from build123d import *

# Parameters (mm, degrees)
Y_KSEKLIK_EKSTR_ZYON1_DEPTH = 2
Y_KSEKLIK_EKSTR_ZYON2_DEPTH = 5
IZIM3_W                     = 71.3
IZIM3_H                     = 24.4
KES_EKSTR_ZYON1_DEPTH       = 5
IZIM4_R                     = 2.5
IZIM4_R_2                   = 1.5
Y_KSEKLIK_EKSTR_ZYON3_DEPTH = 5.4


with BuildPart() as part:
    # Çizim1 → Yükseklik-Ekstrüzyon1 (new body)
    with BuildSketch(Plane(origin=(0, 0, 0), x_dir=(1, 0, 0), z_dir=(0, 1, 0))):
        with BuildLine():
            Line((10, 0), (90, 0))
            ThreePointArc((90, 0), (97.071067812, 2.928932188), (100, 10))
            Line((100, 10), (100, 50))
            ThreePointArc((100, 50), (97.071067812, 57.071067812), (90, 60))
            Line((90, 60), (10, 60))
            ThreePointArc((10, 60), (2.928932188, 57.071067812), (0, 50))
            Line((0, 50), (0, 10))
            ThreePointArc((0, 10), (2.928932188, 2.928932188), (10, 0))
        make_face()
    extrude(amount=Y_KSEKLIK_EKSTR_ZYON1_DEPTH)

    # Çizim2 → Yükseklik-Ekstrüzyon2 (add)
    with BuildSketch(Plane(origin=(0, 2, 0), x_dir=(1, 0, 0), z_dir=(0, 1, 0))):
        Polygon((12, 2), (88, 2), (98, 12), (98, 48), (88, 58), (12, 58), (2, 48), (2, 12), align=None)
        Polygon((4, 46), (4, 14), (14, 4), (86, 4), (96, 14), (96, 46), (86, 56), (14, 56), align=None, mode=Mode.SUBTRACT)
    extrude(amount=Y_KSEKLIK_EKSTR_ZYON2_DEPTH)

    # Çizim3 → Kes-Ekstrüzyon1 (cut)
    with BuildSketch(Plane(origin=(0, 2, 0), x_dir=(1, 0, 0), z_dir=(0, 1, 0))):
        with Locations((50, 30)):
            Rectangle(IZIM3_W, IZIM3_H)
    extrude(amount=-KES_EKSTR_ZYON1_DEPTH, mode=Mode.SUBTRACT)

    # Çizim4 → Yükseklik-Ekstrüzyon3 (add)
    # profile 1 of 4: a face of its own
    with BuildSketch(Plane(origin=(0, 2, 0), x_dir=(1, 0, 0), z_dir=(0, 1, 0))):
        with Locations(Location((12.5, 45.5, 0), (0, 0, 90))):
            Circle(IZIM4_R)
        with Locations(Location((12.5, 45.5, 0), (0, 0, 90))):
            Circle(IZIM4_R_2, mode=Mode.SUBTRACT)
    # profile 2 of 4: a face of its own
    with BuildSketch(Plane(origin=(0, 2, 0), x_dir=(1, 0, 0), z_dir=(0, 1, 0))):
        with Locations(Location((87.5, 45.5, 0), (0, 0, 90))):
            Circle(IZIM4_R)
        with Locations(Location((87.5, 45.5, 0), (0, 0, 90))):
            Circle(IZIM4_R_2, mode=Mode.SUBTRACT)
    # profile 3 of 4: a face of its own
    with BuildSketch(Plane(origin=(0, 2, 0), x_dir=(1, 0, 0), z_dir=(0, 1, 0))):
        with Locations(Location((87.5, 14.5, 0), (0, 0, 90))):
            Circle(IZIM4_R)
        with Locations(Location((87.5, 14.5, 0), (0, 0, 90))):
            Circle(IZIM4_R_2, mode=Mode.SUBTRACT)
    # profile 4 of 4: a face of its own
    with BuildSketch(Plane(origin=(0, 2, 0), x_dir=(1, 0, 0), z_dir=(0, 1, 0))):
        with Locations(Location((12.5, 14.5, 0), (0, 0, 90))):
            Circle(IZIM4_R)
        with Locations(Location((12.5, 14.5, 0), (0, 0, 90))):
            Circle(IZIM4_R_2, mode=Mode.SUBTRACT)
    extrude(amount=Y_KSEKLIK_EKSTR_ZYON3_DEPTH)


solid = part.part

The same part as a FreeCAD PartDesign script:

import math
import FreeCAD as App
import Part
import Sketcher
from FreeCAD import Vector

doc = App.newDocument("Part")
body = doc.addObject("PartDesign::Body", "Body")

sketch1 = body.newObject("Sketcher::SketchObject", "Sketch")
sketch1.AttachmentSupport = (doc.getObject("XZ_Plane"), [""])
sketch1.MapMode = "FlatFace"
sketch1.addGeometry(Part.LineSegment(Vector(10, 0, 0), Vector(90, 0, 0)), False)
sketch1.addGeometry(Part.ArcOfCircle(Part.Circle(Vector(90, -10, 0), Vector(0, 0, 1), 10), math.radians(0), math.radians(90)), False)
sketch1.addGeometry(Part.LineSegment(Vector(100, -10, 0), Vector(100, -50, 0)), False)
sketch1.addGeometry(Part.ArcOfCircle(Part.Circle(Vector(90, -50, 0), Vector(0, 0, 1), 10), math.radians(-90), math.radians(0)), False)
sketch1.addGeometry(Part.LineSegment(Vector(90, -60, 0), Vector(10, -60, 0)), False)
sketch1.addGeometry(Part.ArcOfCircle(Part.Circle(Vector(10, -50, 0), Vector(0, 0, 1), 10), math.radians(180), math.radians(270)), False)
sketch1.addGeometry(Part.LineSegment(Vector(0, -50, 0), Vector(0, -10, 0)), False)
sketch1.addGeometry(Part.ArcOfCircle(Part.Circle(Vector(10, -10, 0), Vector(0, 0, 1), 10), math.radians(90), math.radians(180)), False)
sketch1.addConstraint(Sketcher.Constraint("Tangent", 0, 2, 1, 2))
sketch1.addConstraint(Sketcher.Constraint("Tangent", 1, 1, 2, 1))
sketch1.addConstraint(Sketcher.Constraint("Tangent", 2, 2, 3, 2))
sketch1.addConstraint(Sketcher.Constraint("Tangent", 3, 1, 4, 1))
sketch1.addConstraint(Sketcher.Constraint("Tangent", 4, 2, 5, 2))
sketch1.addConstraint(Sketcher.Constraint("Tangent", 5, 1, 6, 1))
sketch1.addConstraint(Sketcher.Constraint("Tangent", 6, 2, 7, 2))
sketch1.addConstraint(Sketcher.Constraint("Tangent", 7, 1, 0, 1))
sketch1.addConstraint(Sketcher.Constraint("Horizontal", 0))
sketch1.addConstraint(Sketcher.Constraint("Vertical", 2))
sketch1.addConstraint(Sketcher.Constraint("Horizontal", 4))
sketch1.addConstraint(Sketcher.Constraint("Vertical", 6))
sketch1.addConstraint(Sketcher.Constraint("Equal", 1, 3))
sketch1.addConstraint(Sketcher.Constraint("Equal", 3, 5))
sketch1.addConstraint(Sketcher.Constraint("Equal", 5, 7))
sketch1.addConstraint(Sketcher.Constraint("PointOnObject", 0, 2, -1))
sketch1.addConstraint(Sketcher.Constraint("PointOnObject", 5, 1, -2))
sketch1.addConstraint(Sketcher.Constraint("Radius", 1, 10.0))
sketch1.addConstraint(Sketcher.Constraint("DistanceX", 0, 1, 0, 2, 80.0))
sketch1.addConstraint(Sketcher.Constraint("DistanceY", 2, 2, 2, 1, 40.0))
pad1 = body.newObject("PartDesign::Pad", "Pad")
pad1.Profile = sketch1
pad1.Length = 2
pad1.Reversed = True

sketch2 = body.newObject("Sketcher::SketchObject", "Sketch001")
sketch2.AttachmentSupport = (doc.getObject("XZ_Plane"), [""])
sketch2.MapMode = "FlatFace"
sketch2.AttachmentOffset = App.Placement(Vector(0, 0, -2), App.Rotation())
sketch2.addGeometry(Part.LineSegment(Vector(12, -2, 0), Vector(88, -2, 0)), False)
sketch2.addGeometry(Part.LineSegment(Vector(88, -2, 0), Vector(98, -12, 0)), False)
sketch2.addGeometry(Part.LineSegment(Vector(98, -12, 0), Vector(98, -48, 0)), False)
sketch2.addGeometry(Part.LineSegment(Vector(98, -48, 0), Vector(88, -58, 0)), False)
sketch2.addGeometry(Part.LineSegment(Vector(88, -58, 0), Vector(12, -58, 0)), False)
sketch2.addGeometry(Part.LineSegment(Vector(12, -58, 0), Vector(2, -48, 0)), False)
sketch2.addGeometry(Part.LineSegment(Vector(2, -48, 0), Vector(2, -12, 0)), False)
sketch2.addGeometry(Part.LineSegment(Vector(2, -12, 0), Vector(12, -2, 0)), False)
sketch2.addGeometry(Part.LineSegment(Vector(4, -14, 0), Vector(4, -46, 0)), False)
sketch2.addGeometry(Part.LineSegment(Vector(4, -46, 0), Vector(14, -56, 0)), False)
sketch2.addGeometry(Part.LineSegment(Vector(14, -56, 0), Vector(86, -56, 0)), False)
sketch2.addGeometry(Part.LineSegment(Vector(86, -56, 0), Vector(96, -46, 0)), False)
sketch2.addGeometry(Part.LineSegment(Vector(96, -46, 0), Vector(96, -14, 0)), False)
sketch2.addGeometry(Part.LineSegment(Vector(96, -14, 0), Vector(86, -4, 0)), False)
sketch2.addGeometry(Part.LineSegment(Vector(86, -4, 0), Vector(14, -4, 0)), False)
sketch2.addGeometry(Part.LineSegment(Vector(14, -4, 0), Vector(4, -14, 0)), False)
sketch2.addConstraint(Sketcher.Constraint("Coincident", 0, 2, 1, 1))
sketch2.addConstraint(Sketcher.Constraint("Coincident", 1, 2, 2, 1))
sketch2.addConstraint(Sketcher.Constraint("Coincident", 2, 2, 3, 1))
sketch2.addConstraint(Sketcher.Constraint("Coincident", 3, 2, 4, 1))
sketch2.addConstraint(Sketcher.Constraint("Coincident", 4, 2, 5, 1))
sketch2.addConstraint(Sketcher.Constraint("Coincident", 5, 2, 6, 1))
sketch2.addConstraint(Sketcher.Constraint("Coincident", 6, 2, 7, 1))
sketch2.addConstraint(Sketcher.Constraint("Coincident", 7, 2, 0, 1))
sketch2.addConstraint(Sketcher.Constraint("Coincident", 8, 2, 9, 1))
sketch2.addConstraint(Sketcher.Constraint("Coincident", 9, 2, 10, 1))
sketch2.addConstraint(Sketcher.Constraint("Coincident", 10, 2, 11, 1))
sketch2.addConstraint(Sketcher.Constraint("Coincident", 11, 2, 12, 1))
sketch2.addConstraint(Sketcher.Constraint("Coincident", 12, 2, 13, 1))
sketch2.addConstraint(Sketcher.Constraint("Coincident", 13, 2, 14, 1))
sketch2.addConstraint(Sketcher.Constraint("Coincident", 14, 2, 15, 1))
sketch2.addConstraint(Sketcher.Constraint("Coincident", 15, 2, 8, 1))
sketch2.addConstraint(Sketcher.Constraint("Horizontal", 0))
sketch2.addConstraint(Sketcher.Constraint("Vertical", 2))
sketch2.addConstraint(Sketcher.Constraint("Horizontal", 4))
sketch2.addConstraint(Sketcher.Constraint("Vertical", 6))
sketch2.addConstraint(Sketcher.Constraint("Vertical", 8))
sketch2.addConstraint(Sketcher.Constraint("Horizontal", 10))
sketch2.addConstraint(Sketcher.Constraint("Vertical", 12))
sketch2.addConstraint(Sketcher.Constraint("Horizontal", 14))
sketch2.addConstraint(Sketcher.Constraint("Perpendicular", 1, 3))
sketch2.addConstraint(Sketcher.Constraint("Perpendicular", 3, 5))
sketch2.addConstraint(Sketcher.Constraint("Perpendicular", 5, 7))
sketch2.addConstraint(Sketcher.Constraint("Perpendicular", 7, 9))
sketch2.addConstraint(Sketcher.Constraint("Perpendicular", 9, 11))
sketch2.addConstraint(Sketcher.Constraint("Perpendicular", 11, 13))
sketch2.addConstraint(Sketcher.Constraint("Perpendicular", 13, 15))
sketch2.addConstraint(Sketcher.Constraint("Horizontal", 2, 2, 5, 2))
sketch2.addConstraint(Sketcher.Constraint("Horizontal", 1, 2, 6, 2))
sketch2.addConstraint(Sketcher.Constraint("Horizontal", 8, 2, 11, 2))
sketch2.addConstraint(Sketcher.Constraint("Horizontal", 12, 2, 15, 2))
sketch2.addConstraint(Sketcher.Constraint("Vertical", 0, 2, 3, 2))
sketch2.addConstraint(Sketcher.Constraint("Vertical", 4, 2, 7, 2))
sketch2.addConstraint(Sketcher.Constraint("Vertical", 10, 2, 13, 2))
sketch2.addConstraint(Sketcher.Constraint("Equal", 7, 9))
sketch2.addConstraint(Sketcher.Constraint("DistanceX", 0, 1, 0, 2, 76.0))
sketch2.addConstraint(Sketcher.Constraint("DistanceX", 10, 1, 10, 2, 72.0))
sketch2.addConstraint(Sketcher.Constraint("DistanceY", 2, 2, 2, 1, 36.0))
sketch2.addConstraint(Sketcher.Constraint("DistanceY", 8, 2, 8, 1, 32.0))
sketch2.addConstraint(Sketcher.Constraint("DistanceX", -1, 1, 0, 2, 88.0))
sketch2.addConstraint(Sketcher.Constraint("DistanceY", 0, 2, -1, 1, 2.0))
sketch2.addConstraint(Sketcher.Constraint("DistanceX", -1, 1, 1, 2, 98.0))
sketch2.addConstraint(Sketcher.Constraint("DistanceX", -1, 1, 8, 2, 4.0))
sketch2.addConstraint(Sketcher.Constraint("DistanceY", 8, 2, -1, 1, 46.0))
pad2 = body.newObject("PartDesign::Pad", "Pad001")
pad2.Profile = sketch2
pad2.Length = 5
pad2.Reversed = True

sketch3 = body.newObject("Sketcher::SketchObject", "Sketch002")
sketch3.AttachmentSupport = (doc.getObject("XZ_Plane"), [""])
sketch3.MapMode = "FlatFace"
sketch3.AttachmentOffset = App.Placement(Vector(0, 0, -2), App.Rotation())
sketch3.addGeometry(Part.LineSegment(Vector(14, -42, 0), Vector(14, -18, 0)), False)
sketch3.addGeometry(Part.LineSegment(Vector(14, -18, 0), Vector(86, -18, 0)), False)
sketch3.addGeometry(Part.LineSegment(Vector(86, -18, 0), Vector(86, -42, 0)), False)
sketch3.addGeometry(Part.LineSegment(Vector(86, -42, 0), Vector(14, -42, 0)), False)
sketch3.addConstraint(Sketcher.Constraint("Coincident", 0, 2, 1, 1))
sketch3.addConstraint(Sketcher.Constraint("Coincident", 1, 2, 2, 1))
sketch3.addConstraint(Sketcher.Constraint("Coincident", 2, 2, 3, 1))
sketch3.addConstraint(Sketcher.Constraint("Coincident", 3, 2, 0, 1))
sketch3.addConstraint(Sketcher.Constraint("Vertical", 0))
sketch3.addConstraint(Sketcher.Constraint("Horizontal", 1))
sketch3.addConstraint(Sketcher.Constraint("Vertical", 2))
sketch3.addConstraint(Sketcher.Constraint("Horizontal", 3))
sketch3.addConstraint(Sketcher.Constraint("DistanceX", 1, 1, 1, 2, 71.3))
sketch3.addConstraint(Sketcher.Constraint("DistanceY", 0, 1, 0, 2, 24.4))
sketch3.addConstraint(Sketcher.Constraint("DistanceY", 0, 2, -1, 1, 17.8))
sketch3.addConstraint(Sketcher.Constraint("DistanceX", -1, 1, 0, 2, 14.35))
pocket1 = body.newObject("PartDesign::Pocket", "Pocket")
pocket1.Profile = sketch3
pocket1.Length = 5
pocket1.Reversed = True

sketch4 = body.newObject("Sketcher::SketchObject", "Sketch003")
sketch4.AttachmentSupport = (doc.getObject("XZ_Plane"), [""])
sketch4.MapMode = "FlatFace"
sketch4.AttachmentOffset = App.Placement(Vector(0, 0, -2), App.Rotation())
sketch4.addGeometry(Part.Circle(Vector(12.5, -45.5, 0), Vector(0, 0, 1), 2.5), False)
sketch4.addGeometry(Part.Circle(Vector(12.5, -45.5, 0), Vector(0, 0, 1), 1.5), False)
sketch4.addGeometry(Part.Circle(Vector(87.5, -45.5, 0), Vector(0, 0, 1), 2.5), False)
sketch4.addGeometry(Part.Circle(Vector(87.5, -45.5, 0), Vector(0, 0, 1), 1.5), False)
sketch4.addGeometry(Part.Circle(Vector(87.5, -14.5, 0), Vector(0, 0, 1), 2.5), False)
sketch4.addGeometry(Part.Circle(Vector(87.5, -14.5, 0), Vector(0, 0, 1), 1.5), False)
sketch4.addGeometry(Part.Circle(Vector(12.5, -14.5, 0), Vector(0, 0, 1), 2.5), False)
sketch4.addGeometry(Part.Circle(Vector(12.5, -14.5, 0), Vector(0, 0, 1), 1.5), False)
sketch4.addConstraint(Sketcher.Constraint("Coincident", 1, 3, 0, 3))
sketch4.addConstraint(Sketcher.Constraint("Coincident", 3, 3, 2, 3))
sketch4.addConstraint(Sketcher.Constraint("Coincident", 5, 3, 4, 3))
sketch4.addConstraint(Sketcher.Constraint("Coincident", 7, 3, 6, 3))
sketch4.addConstraint(Sketcher.Constraint("Equal", 0, 2))
sketch4.addConstraint(Sketcher.Constraint("Equal", 1, 3))
sketch4.addConstraint(Sketcher.Constraint("Equal", 2, 4))
sketch4.addConstraint(Sketcher.Constraint("Equal", 3, 5))
sketch4.addConstraint(Sketcher.Constraint("Equal", 4, 6))
sketch4.addConstraint(Sketcher.Constraint("Equal", 5, 7))
sketch4.addConstraint(Sketcher.Constraint("Horizontal", 1, 3, 2, 3))
sketch4.addConstraint(Sketcher.Constraint("Horizontal", 5, 3, 6, 3))
sketch4.addConstraint(Sketcher.Constraint("Vertical", 3, 3, 4, 3))
sketch4.addConstraint(Sketcher.Constraint("Vertical", 1, 3, 6, 3))
sketch4.addConstraint(Sketcher.Constraint("Diameter", 0, 5.0))
sketch4.addConstraint(Sketcher.Constraint("Diameter", 1, 3.0))
sketch4.addConstraint(Sketcher.Constraint("DistanceX", 0, 3, 2, 3, 75.0))
sketch4.addConstraint(Sketcher.Constraint("DistanceY", 2, 3, 4, 3, 31.0))
sketch4.addConstraint(Sketcher.Constraint("DistanceX", -1, 1, 0, 3, 12.5))
sketch4.addConstraint(Sketcher.Constraint("DistanceY", 0, 3, -1, 1, 45.5))
pad3 = body.newObject("PartDesign::Pad", "Pad002")
pad3.Profile = sketch4
pad3.Length = 5.4
pad3.Reversed = True

doc.recompute()
